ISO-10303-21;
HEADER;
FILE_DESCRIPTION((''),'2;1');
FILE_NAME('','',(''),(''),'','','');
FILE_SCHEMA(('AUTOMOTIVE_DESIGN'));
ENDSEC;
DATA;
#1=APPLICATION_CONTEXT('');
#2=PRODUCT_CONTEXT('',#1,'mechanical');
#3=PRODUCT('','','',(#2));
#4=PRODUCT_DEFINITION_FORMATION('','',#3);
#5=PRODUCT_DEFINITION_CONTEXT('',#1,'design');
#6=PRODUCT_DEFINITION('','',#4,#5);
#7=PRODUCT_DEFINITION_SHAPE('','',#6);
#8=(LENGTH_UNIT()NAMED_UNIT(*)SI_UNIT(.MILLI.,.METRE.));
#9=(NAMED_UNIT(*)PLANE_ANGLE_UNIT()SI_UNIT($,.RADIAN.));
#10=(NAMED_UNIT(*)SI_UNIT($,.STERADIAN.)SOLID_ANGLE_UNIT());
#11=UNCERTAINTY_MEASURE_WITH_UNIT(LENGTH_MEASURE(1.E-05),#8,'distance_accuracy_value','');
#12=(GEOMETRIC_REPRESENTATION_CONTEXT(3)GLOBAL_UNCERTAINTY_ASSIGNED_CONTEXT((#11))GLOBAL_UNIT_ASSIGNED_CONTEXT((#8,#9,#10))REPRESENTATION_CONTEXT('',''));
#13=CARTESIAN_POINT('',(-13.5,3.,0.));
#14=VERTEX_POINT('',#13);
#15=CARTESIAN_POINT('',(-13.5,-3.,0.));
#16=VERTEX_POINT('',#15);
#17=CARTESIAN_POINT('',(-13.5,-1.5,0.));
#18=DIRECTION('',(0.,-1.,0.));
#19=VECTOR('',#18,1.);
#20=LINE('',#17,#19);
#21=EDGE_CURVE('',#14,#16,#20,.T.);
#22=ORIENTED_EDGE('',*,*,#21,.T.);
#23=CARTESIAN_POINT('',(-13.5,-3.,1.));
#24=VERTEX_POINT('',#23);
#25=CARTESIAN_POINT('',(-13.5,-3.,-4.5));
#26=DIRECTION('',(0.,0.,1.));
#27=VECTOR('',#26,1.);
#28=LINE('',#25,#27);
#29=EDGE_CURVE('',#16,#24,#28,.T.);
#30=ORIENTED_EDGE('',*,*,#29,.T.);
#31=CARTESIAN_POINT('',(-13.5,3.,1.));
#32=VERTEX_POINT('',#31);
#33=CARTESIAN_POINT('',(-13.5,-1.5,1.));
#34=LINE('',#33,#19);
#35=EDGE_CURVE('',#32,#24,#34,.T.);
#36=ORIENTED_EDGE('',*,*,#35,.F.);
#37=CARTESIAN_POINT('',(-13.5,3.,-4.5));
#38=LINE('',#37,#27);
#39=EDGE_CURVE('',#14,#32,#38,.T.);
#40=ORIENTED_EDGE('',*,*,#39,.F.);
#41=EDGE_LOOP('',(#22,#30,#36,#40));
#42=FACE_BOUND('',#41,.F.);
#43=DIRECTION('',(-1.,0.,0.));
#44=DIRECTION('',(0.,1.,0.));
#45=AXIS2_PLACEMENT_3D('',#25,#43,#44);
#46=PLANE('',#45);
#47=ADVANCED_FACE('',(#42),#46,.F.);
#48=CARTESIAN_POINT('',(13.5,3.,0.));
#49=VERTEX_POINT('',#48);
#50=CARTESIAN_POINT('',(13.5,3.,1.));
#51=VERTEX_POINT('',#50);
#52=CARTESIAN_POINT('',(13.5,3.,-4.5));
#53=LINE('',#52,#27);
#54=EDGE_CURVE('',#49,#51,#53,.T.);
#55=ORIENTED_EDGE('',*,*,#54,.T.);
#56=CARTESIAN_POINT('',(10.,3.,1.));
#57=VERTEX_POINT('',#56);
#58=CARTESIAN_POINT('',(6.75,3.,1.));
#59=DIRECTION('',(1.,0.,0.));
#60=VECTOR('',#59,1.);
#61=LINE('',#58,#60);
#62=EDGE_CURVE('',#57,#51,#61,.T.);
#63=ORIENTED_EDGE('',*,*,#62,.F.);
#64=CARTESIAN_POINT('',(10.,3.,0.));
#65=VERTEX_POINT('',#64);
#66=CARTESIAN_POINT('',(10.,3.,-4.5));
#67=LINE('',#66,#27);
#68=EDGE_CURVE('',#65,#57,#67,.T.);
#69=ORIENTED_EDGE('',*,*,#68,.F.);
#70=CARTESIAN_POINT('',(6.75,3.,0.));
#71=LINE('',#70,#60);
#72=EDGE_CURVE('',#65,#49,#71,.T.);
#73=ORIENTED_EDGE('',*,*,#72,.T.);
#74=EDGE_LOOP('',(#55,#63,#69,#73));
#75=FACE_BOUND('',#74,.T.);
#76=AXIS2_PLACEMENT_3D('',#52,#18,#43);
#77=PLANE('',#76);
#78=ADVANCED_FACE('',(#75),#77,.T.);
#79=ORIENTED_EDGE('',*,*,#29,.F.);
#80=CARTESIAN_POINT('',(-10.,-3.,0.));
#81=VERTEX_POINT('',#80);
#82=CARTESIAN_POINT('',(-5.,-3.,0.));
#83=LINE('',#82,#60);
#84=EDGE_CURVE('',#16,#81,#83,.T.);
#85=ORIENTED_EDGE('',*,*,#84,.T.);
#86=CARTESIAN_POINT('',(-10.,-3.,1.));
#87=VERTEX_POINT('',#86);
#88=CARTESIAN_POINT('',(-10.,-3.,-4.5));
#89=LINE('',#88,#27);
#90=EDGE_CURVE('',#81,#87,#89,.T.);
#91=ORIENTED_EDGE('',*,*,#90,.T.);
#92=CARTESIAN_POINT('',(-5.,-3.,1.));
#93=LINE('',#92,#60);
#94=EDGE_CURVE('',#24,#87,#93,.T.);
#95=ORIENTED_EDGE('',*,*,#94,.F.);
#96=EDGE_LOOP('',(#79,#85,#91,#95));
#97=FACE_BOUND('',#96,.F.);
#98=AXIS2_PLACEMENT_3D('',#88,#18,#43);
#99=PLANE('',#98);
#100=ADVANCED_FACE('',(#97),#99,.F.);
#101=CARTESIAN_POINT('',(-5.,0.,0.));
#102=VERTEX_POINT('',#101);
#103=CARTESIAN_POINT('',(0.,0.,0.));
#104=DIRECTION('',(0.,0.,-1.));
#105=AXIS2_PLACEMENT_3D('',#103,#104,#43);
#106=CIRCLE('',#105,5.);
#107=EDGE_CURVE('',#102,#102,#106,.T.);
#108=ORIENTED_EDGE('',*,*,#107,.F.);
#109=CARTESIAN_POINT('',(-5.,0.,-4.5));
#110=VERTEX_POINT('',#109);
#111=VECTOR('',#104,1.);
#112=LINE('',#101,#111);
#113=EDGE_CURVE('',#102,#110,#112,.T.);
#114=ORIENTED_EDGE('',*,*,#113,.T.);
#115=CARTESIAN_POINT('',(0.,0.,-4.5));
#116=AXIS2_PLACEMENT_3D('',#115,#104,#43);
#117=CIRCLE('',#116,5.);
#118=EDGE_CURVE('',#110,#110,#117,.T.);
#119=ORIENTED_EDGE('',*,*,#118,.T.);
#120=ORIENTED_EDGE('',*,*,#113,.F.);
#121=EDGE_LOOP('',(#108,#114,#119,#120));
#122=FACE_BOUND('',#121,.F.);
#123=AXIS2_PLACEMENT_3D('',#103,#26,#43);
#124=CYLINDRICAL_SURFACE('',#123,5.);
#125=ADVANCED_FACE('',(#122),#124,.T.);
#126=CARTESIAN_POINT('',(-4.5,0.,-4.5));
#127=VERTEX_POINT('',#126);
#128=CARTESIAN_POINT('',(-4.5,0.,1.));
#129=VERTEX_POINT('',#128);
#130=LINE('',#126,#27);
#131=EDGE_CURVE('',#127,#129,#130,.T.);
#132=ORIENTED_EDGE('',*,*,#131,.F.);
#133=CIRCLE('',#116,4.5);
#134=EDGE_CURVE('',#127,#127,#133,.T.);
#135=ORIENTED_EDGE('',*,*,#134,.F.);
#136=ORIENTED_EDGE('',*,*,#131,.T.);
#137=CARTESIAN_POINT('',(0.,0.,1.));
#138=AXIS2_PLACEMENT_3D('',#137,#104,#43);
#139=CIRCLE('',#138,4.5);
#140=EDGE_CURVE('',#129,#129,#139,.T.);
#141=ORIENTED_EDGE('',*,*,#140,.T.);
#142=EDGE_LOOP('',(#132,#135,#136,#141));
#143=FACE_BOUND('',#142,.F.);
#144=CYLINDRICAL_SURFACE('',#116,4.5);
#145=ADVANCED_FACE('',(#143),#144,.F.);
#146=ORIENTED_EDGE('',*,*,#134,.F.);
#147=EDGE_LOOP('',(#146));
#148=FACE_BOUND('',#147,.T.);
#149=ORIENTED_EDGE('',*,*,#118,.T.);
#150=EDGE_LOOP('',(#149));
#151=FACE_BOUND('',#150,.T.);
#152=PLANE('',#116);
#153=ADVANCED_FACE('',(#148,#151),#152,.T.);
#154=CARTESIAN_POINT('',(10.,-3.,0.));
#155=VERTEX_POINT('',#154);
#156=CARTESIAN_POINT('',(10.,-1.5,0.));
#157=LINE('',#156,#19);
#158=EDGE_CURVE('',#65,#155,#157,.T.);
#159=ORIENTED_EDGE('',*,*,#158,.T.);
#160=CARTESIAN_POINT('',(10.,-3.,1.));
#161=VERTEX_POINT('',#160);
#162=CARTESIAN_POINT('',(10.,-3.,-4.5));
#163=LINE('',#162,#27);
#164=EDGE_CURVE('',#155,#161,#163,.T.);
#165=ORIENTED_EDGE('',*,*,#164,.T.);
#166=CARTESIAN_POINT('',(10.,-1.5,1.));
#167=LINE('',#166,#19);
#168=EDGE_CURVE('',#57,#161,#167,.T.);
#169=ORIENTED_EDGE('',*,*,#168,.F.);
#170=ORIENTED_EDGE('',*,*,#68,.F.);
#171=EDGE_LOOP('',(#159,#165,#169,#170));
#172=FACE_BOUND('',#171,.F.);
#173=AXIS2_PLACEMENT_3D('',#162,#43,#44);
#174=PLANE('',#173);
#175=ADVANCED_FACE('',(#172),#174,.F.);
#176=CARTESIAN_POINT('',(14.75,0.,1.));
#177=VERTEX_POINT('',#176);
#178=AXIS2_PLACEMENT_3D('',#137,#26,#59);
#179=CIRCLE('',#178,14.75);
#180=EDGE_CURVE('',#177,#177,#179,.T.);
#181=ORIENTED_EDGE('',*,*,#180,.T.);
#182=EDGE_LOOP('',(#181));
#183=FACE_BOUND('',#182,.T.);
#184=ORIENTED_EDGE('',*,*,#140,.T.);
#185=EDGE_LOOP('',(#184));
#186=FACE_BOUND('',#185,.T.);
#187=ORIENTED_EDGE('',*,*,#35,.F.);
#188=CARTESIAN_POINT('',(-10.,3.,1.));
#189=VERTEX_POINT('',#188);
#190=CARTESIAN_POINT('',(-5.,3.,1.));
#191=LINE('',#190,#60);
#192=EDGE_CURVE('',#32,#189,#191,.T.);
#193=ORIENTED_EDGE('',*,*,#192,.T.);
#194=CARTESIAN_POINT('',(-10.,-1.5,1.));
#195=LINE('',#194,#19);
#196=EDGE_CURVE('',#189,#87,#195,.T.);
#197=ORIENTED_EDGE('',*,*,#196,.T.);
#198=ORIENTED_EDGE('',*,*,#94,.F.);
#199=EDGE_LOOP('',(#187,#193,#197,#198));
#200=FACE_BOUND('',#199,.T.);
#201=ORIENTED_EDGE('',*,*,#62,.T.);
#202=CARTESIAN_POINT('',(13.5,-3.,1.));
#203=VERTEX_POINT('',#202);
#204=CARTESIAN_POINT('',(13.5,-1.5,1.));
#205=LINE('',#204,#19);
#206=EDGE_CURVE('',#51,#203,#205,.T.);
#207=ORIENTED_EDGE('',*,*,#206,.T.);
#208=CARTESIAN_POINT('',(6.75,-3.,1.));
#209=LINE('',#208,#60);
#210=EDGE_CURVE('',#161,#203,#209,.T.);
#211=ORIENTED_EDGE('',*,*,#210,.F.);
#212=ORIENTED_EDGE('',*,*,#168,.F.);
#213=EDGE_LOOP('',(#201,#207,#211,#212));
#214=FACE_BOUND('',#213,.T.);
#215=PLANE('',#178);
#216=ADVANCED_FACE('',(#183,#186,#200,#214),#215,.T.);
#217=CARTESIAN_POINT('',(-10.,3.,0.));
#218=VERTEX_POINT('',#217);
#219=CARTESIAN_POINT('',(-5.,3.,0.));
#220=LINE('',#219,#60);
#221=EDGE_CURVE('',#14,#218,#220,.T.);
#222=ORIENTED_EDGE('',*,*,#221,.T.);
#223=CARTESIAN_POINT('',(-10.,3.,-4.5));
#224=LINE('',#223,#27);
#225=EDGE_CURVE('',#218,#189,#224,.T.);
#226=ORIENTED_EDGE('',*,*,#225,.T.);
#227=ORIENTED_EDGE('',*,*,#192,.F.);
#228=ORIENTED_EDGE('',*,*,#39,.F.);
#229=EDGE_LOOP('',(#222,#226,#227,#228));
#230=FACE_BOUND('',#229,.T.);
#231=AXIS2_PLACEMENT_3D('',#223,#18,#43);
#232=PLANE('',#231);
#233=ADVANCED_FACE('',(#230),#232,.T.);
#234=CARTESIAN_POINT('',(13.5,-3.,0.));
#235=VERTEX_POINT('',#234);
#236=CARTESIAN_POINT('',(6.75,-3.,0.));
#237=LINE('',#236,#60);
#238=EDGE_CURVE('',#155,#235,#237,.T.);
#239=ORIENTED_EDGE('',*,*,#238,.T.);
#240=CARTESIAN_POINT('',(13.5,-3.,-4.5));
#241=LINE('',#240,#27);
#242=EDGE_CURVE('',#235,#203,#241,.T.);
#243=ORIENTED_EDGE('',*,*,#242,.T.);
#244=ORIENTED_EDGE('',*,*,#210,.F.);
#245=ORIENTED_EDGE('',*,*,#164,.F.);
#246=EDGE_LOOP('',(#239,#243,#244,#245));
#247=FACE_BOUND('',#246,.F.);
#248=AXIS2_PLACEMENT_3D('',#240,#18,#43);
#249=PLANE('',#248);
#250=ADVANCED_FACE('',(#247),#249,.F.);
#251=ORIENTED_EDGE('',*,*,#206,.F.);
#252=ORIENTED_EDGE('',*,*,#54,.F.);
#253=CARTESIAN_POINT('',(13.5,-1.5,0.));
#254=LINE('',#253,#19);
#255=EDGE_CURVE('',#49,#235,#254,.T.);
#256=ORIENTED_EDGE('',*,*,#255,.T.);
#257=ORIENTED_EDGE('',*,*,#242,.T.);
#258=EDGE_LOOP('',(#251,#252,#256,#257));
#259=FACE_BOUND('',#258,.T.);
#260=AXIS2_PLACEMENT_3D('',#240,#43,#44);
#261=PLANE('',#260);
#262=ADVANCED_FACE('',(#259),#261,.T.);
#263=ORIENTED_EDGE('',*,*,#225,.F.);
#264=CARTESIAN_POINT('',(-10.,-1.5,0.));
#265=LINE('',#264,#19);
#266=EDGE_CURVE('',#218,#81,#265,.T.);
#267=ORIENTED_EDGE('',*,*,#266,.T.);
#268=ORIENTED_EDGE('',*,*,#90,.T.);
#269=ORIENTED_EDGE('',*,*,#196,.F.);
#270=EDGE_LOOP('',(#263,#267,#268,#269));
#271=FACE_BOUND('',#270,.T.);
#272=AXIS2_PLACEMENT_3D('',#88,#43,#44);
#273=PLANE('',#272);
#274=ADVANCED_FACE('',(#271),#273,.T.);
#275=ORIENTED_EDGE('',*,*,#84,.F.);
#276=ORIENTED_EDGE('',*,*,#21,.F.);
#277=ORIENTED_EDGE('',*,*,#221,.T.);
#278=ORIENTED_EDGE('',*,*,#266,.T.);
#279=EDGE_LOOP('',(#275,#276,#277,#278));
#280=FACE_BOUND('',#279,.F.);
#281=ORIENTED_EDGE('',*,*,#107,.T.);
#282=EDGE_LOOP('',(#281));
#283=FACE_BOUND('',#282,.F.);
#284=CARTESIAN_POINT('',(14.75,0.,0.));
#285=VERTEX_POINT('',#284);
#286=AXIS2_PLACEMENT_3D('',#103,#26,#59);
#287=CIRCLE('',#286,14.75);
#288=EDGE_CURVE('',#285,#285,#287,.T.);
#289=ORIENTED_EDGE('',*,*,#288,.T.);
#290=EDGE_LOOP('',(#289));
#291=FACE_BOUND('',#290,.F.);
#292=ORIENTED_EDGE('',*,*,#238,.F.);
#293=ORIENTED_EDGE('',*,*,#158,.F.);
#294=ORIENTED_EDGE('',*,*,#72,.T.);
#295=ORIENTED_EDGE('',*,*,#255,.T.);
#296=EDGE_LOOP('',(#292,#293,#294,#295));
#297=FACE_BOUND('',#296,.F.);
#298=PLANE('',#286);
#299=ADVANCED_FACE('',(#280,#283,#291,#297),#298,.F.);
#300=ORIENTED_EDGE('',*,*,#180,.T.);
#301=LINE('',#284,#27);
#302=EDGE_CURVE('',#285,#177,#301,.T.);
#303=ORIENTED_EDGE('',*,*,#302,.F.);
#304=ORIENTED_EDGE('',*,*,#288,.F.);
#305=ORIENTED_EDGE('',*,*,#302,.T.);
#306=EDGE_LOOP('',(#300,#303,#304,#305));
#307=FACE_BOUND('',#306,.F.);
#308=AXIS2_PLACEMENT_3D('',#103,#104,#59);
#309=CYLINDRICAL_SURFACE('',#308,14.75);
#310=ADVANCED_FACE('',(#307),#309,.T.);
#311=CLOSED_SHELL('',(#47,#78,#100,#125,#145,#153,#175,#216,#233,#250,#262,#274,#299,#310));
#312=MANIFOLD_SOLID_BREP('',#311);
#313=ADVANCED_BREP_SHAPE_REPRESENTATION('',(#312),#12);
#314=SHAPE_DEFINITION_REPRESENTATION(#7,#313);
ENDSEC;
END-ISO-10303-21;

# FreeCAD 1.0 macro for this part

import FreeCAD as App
import Part
import Sketcher

V = App.Vector
Q = App.Units.Quantity

doc = App.newDocument("Part")
params = doc.addObject("Spreadsheet::Sheet", "Params")
for row, (alias, value) in enumerate([
    ("sketch1_diameter", "29.5 mm"),
    ("pad1_length", "1 mm"),
    ("sketch2_diameter", "10 mm"),
    ("pad2_length", "4.5 mm"),
    ("sketch3_diameter", "9 mm"),
    ("sketch3_height", "6 mm"),
    ("sketch3_width", "3.5 mm"),
], start=1):
    params.set(f"A{row}", alias)
    params.set(f"B{row}", "=" + value)
    params.setAlias(f"B{row}", alias)

body = doc.addObject("PartDesign::Body", "Body")

# Sketch on XY plane
sketch1 = body.newObject("Sketcher::SketchObject", "Sketch")
sketch1.AttachmentSupport = (doc.getObject("XY_Plane"), [""])
sketch1.MapMode = "FlatFace"
sketch1.addGeometry(Part.Circle(V(0, 0, 0), V(0, 0, 1), 15), False)
sketch1.addConstraint([
    Sketcher.Constraint("Coincident", 0, 3, -1, 1),
    Sketcher.Constraint("Diameter", 0, Q("29.5 mm")),
])
sketch1.setExpression("Constraints[1]", "Params.sketch1_diameter")
pad1 = body.newObject("PartDesign::Pad", "Pad")
pad1.Profile = sketch1
pad1.setExpression("Length", "Params.pad1_length")

# Sketch on XY plane
sketch2 = body.newObject("Sketcher::SketchObject", "Sketch001")
sketch2.AttachmentSupport = (doc.getObject("XY_Plane"), [""])
sketch2.MapMode = "FlatFace"
sketch2.addGeometry(Part.Circle(V(0, 0, 0), V(0, 0, 1), 5), False)
sketch2.addConstraint([
    Sketcher.Constraint("Coincident", 0, 3, -1, 1),
    Sketcher.Constraint("Diameter", 0, Q("10 mm")),
])
sketch2.setExpression("Constraints[1]", "Params.sketch2_diameter")
pad2 = body.newObject("PartDesign::Pad", "Pad001")
pad2.Profile = sketch2
pad2.setExpression("Length", "Params.pad2_length")
pad2.Reversed = True

# Sketch on XY plane
sketch3 = body.newObject("Sketcher::SketchObject", "Sketch002")
sketch3.AttachmentSupport = (doc.getObject("XY_Plane"), [""])
sketch3.MapMode = "FlatFace"
sketch3.AttachmentOffset = App.Placement(V(0, 0, -4.5), App.Rotation())
sketch3.addGeometry([
    Part.Circle(V(0, 0, 0), V(0, 0, 1), 4.5),  # 0
    Part.LineSegment(V(13.5, 3, 0), V(13.5, -3, 0)),  # 1
    Part.LineSegment(V(13.5, -3, 0), V(10, -3, 0)),  # 2
    Part.LineSegment(V(10, -3, 0), V(10, 3, 0)),  # 3
    Part.LineSegment(V(10, 3, 0), V(13.5, 3, 0)),  # 4
    Part.LineSegment(V(-10, 3, 0), V(-10, -3, 0)),  # 5
    Part.LineSegment(V(-10, -3, 0), V(-13.5, -3, 0)),  # 6
    Part.LineSegment(V(-13.5, -3, 0), V(-13.5, 3, 0)),  # 7
    Part.LineSegment(V(-13.5, 3, 0), V(-10, 3, 0)),  # 8
], False)
sketch3.addConstraint([
    Sketcher.Constraint("Coincident", 1, 2, 2, 1),
    Sketcher.Constraint("Coincident", 2, 2, 3, 1),
    Sketcher.Constraint("Coincident", 3, 2, 4, 1),
    Sketcher.Constraint("Coincident", 4, 2, 1, 1),
    Sketcher.Constraint("Coincident", 5, 2, 6, 1),
    Sketcher.Constraint("Coincident", 6, 2, 7, 1),
    Sketcher.Constraint("Coincident", 7, 2, 8, 1),
    Sketcher.Constraint("Coincident", 8, 2, 5, 1),
    Sketcher.Constraint("Vertical", 1),
    Sketcher.Constraint("Horizontal", 2),
    Sketcher.Constraint("Vertical", 3),
    Sketcher.Constraint("Horizontal", 4),
    Sketcher.Constraint("Vertical", 5),
    Sketcher.Constraint("Horizontal", 6),
    Sketcher.Constraint("Vertical", 7),
    Sketcher.Constraint("Horizontal", 8),
    Sketcher.Constraint("Coincident", 0, 3, -1, 1),
    Sketcher.Constraint("Symmetric", 3, 2, 5, 2, -1, 1),
    Sketcher.Constraint("Symmetric", 1, 2, 7, 2, -1, 1),
    Sketcher.Constraint("Horizontal", 2, 2, 5, 2),
    Sketcher.Constraint("Diameter", 0, Q("9 mm")),
    Sketcher.Constraint("DistanceY", 1, 2, 1, 1, Q("6 mm")),
    Sketcher.Constraint("DistanceX", 2, 2, 2, 1, Q("3.5 mm")),
    Sketcher.Constraint("DistanceX", -1, 1, 2, 2, Q("10 mm")),
])
sketch3.setExpression("Constraints[20]", "Params.sketch3_diameter")
sketch3.setExpression("Constraints[21]", "Params.sketch3_height")
sketch3.setExpression("Constraints[22]", "Params.sketch3_width")
pocket1 = body.newObject("PartDesign::Pocket", "Pocket")
pocket1.Profile = sketch3
pocket1.Type = "ThroughAll"
pocket1.Reversed = True

doc.recompute()
